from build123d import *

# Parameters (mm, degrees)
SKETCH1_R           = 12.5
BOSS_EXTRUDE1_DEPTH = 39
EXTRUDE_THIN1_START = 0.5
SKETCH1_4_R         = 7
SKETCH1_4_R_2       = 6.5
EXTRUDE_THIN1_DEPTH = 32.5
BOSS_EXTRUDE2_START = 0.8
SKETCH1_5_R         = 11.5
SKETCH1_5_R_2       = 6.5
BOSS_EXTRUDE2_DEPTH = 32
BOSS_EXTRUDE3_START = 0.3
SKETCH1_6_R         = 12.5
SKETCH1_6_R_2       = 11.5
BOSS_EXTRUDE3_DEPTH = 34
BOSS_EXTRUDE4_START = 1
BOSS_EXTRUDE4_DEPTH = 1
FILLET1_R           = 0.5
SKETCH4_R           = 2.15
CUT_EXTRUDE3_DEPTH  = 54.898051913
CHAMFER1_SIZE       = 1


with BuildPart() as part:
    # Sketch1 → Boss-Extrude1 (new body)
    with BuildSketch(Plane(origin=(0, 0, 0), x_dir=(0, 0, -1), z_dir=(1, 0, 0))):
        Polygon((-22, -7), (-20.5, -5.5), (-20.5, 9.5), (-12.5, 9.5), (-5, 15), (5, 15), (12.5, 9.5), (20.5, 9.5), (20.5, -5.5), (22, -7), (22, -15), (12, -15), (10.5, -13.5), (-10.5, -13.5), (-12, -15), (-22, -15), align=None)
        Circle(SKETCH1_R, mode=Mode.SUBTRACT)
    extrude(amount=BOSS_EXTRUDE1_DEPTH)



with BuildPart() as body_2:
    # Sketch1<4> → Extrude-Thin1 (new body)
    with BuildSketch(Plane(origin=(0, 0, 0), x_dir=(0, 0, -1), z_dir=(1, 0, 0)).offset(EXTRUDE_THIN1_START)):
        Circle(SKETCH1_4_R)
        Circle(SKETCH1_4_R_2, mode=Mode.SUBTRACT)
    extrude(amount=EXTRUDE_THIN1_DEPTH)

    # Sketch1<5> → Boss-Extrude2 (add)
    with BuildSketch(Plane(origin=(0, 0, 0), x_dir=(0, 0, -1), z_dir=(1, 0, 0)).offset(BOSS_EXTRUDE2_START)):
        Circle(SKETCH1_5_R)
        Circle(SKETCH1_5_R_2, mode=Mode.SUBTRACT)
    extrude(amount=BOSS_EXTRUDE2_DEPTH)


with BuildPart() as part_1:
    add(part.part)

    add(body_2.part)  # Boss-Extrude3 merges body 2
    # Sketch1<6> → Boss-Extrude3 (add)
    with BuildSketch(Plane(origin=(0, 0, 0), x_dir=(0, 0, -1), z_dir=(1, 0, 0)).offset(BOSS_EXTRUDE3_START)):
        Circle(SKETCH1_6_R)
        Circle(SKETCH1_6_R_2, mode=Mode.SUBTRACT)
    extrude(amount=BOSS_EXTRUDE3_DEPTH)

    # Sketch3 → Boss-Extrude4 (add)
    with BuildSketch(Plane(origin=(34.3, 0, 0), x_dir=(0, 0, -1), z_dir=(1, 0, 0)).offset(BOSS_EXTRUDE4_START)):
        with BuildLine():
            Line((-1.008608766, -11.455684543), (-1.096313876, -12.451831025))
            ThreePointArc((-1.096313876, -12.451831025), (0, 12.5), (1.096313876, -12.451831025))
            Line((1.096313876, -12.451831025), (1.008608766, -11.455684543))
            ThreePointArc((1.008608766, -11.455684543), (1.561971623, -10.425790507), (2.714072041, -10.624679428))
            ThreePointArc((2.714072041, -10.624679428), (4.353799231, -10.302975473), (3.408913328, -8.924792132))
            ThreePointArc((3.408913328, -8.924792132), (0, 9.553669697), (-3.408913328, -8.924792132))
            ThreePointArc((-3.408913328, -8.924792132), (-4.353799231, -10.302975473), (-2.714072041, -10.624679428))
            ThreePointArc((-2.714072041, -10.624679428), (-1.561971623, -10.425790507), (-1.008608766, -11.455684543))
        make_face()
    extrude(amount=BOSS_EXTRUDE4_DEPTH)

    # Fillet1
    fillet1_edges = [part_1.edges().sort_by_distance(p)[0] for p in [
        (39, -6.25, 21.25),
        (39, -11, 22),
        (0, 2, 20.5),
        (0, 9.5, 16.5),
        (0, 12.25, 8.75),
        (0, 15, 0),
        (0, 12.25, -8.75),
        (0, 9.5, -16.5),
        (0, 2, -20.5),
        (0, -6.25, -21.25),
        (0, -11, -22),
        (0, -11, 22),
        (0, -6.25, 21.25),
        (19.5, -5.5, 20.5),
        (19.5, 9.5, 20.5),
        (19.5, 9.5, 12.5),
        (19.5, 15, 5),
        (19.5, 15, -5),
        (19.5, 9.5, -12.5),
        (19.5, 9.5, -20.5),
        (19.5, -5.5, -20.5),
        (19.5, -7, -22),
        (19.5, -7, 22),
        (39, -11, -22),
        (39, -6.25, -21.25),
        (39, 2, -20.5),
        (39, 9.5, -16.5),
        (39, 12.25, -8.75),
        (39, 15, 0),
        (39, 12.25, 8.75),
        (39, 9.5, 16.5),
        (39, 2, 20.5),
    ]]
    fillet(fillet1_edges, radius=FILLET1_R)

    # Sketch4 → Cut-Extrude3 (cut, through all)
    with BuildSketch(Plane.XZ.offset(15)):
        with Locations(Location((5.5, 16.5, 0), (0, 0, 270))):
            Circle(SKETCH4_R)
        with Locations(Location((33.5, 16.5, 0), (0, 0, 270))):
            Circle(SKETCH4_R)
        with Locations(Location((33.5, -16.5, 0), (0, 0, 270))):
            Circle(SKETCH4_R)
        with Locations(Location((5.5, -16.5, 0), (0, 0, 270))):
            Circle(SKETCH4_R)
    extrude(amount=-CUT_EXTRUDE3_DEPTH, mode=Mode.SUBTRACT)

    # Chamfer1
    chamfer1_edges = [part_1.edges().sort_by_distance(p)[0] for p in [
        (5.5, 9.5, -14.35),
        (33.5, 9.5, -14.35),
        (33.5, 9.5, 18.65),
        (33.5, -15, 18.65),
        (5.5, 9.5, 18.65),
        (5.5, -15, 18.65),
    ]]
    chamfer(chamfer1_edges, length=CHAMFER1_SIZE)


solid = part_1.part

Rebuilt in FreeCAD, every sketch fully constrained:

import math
import FreeCAD as App
import Part
import Sketcher
from FreeCAD import Vector


def edges_at(feature, points):
    """Names of the edges that pass closest to the given points."""
    edges = feature.Shape.Edges
    near = lambda p: min(range(len(edges)), key=lambda i: edges[i].distToShape(Part.Vertex(*p))[0])
    return sorted({f"Edge{near(p) + 1}" for p in points})


def add_polygon(sketch, points):
    """Adds a closed chain of lines whose ends are joined by coincident constraints."""
    first, n = sketch.GeometryCount, len(points)
    for a, b in zip(points, points[1:] + points[:1]):
        sketch.addGeometry(Part.LineSegment(App.Vector(*a, 0), App.Vector(*b, 0)), False)
    for i in range(n):
        sketch.addConstraint(Sketcher.Constraint("Coincident", first + i, 2, first + (i + 1) % n, 1))

doc = App.newDocument("Part")
params = doc.addObject("Spreadsheet::Sheet", "Params")
for row, (alias, value) in enumerate([
    ("sketch1_diameter", "25 mm"),
    ("sketch1_width", "8 mm"),
    ("sketch1_width2", "15 mm"),
    ("sketch1_height", "10 mm"),
    ("sketch1_height2", "21 mm"),
    ("pad1_length", "39 mm"),
    ("sketch2_diameter", "14 mm"),
    ("sketch2_diameter2", "13 mm"),
    ("pad2_length", "32.5 mm"),
    ("sketch3_diameter", "23 mm"),
    ("sketch3_diameter2", "13 mm"),
    ("pad3_length", "32 mm"),
    ("sketch4_diameter", "25 mm"),
    ("sketch4_diameter2", "23 mm"),
    ("pad4_length", "34 mm"),
    ("sketch5_radius", "1 mm"),
    ("sketch5_radius2", "12.5 mm"),
    ("sketch5_length", "1 mm"),
    ("pad5_length", "1 mm"),
    ("fillet_radius", "0.5 mm"),
    ("sketch6_diameter", "4.3 mm"),
    ("chamfer_size", "1 mm"),
], start=1):
    params.set(f"A{row}", alias)
    params.set(f"B{row}", "=" + value)
    params.setAlias(f"B{row}", alias)

body = doc.addObject("PartDesign::Body", "Body")

sketch1 = body.newObject("Sketcher::SketchObject", "Sketch")
sketch1.AttachmentSupport = (doc.getObject("YZ_Plane"), [""])
sketch1.MapMode = "FlatFace"
add_polygon(sketch1, [(-5.5, 20.5), (-7, 22), (-15, 22), (-15, 12), (-13.5, 10.5), (-13.5, -10.5), (-15, -12), (-15, -22), (-7, -22), (-5.5, -20.5), (9.5, -20.5), (9.5, -12.5), (15, -5), (15, 5), (9.5, 12.5), (9.5, 20.5)])
sketch1.addGeometry(Part.Circle(Vector(0, 0, 0), Vector(0, 0, 1), 12.5), False)
sketch1.addConstraint([
    Sketcher.Constraint("Horizontal", 1),
    Sketcher.Constraint("Vertical", 2),
    Sketcher.Constraint("Vertical", 4),
    Sketcher.Constraint("Vertical", 6),
    Sketcher.Constraint("Horizontal", 7),
    Sketcher.Constraint("Horizontal", 9),
    Sketcher.Constraint("Vertical", 10),
    Sketcher.Constraint("Vertical", 12),
    Sketcher.Constraint("Vertical", 14),
    Sketcher.Constraint("Horizontal", 15),
    Sketcher.Constraint("Coincident", 16, 3, -1, 1),
    Sketcher.Constraint("Symmetric", 2, 2, 5, 2, -1),
    Sketcher.Constraint("Symmetric", 0, 2, 7, 2, -1),
    Sketcher.Constraint("Symmetric", 10, 2, 13, 2, -1),
    Sketcher.Constraint("Symmetric", 8, 2, 15, 2, -1),
    Sketcher.Constraint("Parallel", 0, 3),
    Sketcher.Constraint("Perpendicular", 3, 5),
    Sketcher.Constraint("Parallel", 5, 8),
    Sketcher.Constraint("Equal", 7, 10),
    Sketcher.Constraint("Equal", 6, 12),
    Sketcher.Constraint("Equal", 0, 3),
    Sketcher.Constraint("Equal", 11, 13),
    Sketcher.Constraint("Diameter", 16, 25.0),
    Sketcher.Constraint("DistanceX", 1, 2, 1, 1, 8.0),
    Sketcher.Constraint("DistanceX", 9, 1, 9, 2, 15.0),
    Sketcher.Constraint("DistanceY", 2, 2, 2, 1, 10.0),
    Sketcher.Constraint("DistanceY", 4, 2, 4, 1, 21.0),
    Sketcher.Constraint("DistanceX", 0, 2, -1, 1, 7.0),
    Sketcher.Constraint("DistanceY", -1, 1, 0, 2, 22.0),
    Sketcher.Constraint("DistanceX", -1, 1, 11, 2, 15.0),
])
sketch1.setExpression("Constraints[38]", "Params.sketch1_diameter")
sketch1.setExpression("Constraints[39]", "Params.sketch1_width")
sketch1.setExpression("Constraints[40]", "Params.sketch1_width2")
sketch1.setExpression("Constraints[41]", "Params.sketch1_height")
sketch1.setExpression("Constraints[42]", "Params.sketch1_height2")
pad1 = body.newObject("PartDesign::Pad", "Pad")
pad1.Profile = sketch1
pad1.setExpression("Length", "Params.pad1_length")
body2 = doc.addObject("PartDesign::Body", "Body001")

sketch2 = body2.newObject("Sketcher::SketchObject", "Sketch001")
sketch2.AttachmentSupport = (doc.getObject("YZ_Plane001"), [""])
sketch2.MapMode = "FlatFace"
sketch2.AttachmentOffset = App.Placement(Vector(0, 0, 0.5), App.Rotation())
sketch2.addGeometry([
    Part.Circle(Vector(0, 0, 0), Vector(0, 0, 1), 7),
    Part.Circle(Vector(0, 0, 0), Vector(0, 0, 1), 6),
], False)
sketch2.addConstraint([
    Sketcher.Constraint("Coincident", 0, 3, -1, 1),
    Sketcher.Constraint("Coincident", 1, 3, -1, 1),
    Sketcher.Constraint("Diameter", 0, 14.0),
    Sketcher.Constraint("Diameter", 1, 13.0),
])
sketch2.setExpression("Constraints[2]", "Params.sketch2_diameter")
sketch2.setExpression("Constraints[3]", "Params.sketch2_diameter2")
pad2 = body2.newObject("PartDesign::Pad", "Pad001")
pad2.Profile = sketch2
pad2.setExpression("Length", "Params.pad2_length")

sketch3 = body2.newObject("Sketcher::SketchObject", "Sketch002")
sketch3.AttachmentSupport = (doc.getObject("YZ_Plane001"), [""])
sketch3.MapMode = "FlatFace"
sketch3.AttachmentOffset = App.Placement(Vector(0, 0, 0.8), App.Rotation())
sketch3.addGeometry([
    Part.Circle(Vector(0, 0, 0), Vector(0, 0, 1), 12),
    Part.Circle(Vector(0, 0, 0), Vector(0, 0, 1), 6),
], False)
sketch3.addConstraint([
    Sketcher.Constraint("Coincident", 0, 3, -1, 1),
    Sketcher.Constraint("Coincident", 1, 3, -1, 1),
    Sketcher.Constraint("Diameter", 0, 23.0),
    Sketcher.Constraint("Diameter", 1, 13.0),
])
sketch3.setExpression("Constraints[2]", "Params.sketch3_diameter")
sketch3.setExpression("Constraints[3]", "Params.sketch3_diameter2")
pad3 = body2.newObject("PartDesign::Pad", "Pad002")
pad3.Profile = sketch3
pad3.setExpression("Length", "Params.pad3_length")
body.AllowCompound = True
doc.recompute()

boolean = body.newObject("PartDesign::Boolean", "Boolean")
boolean.Type = "Fuse"
boolean.addObjects([body2])

sketch4 = body.newObject("Sketcher::SketchObject", "Sketch003")
sketch4.AttachmentSupport = (doc.getObject("YZ_Plane"), [""])
sketch4.MapMode = "FlatFace"
sketch4.AttachmentOffset = App.Placement(Vector(0, 0, 0.3), App.Rotation())
sketch4.addGeometry([
    Part.Circle(Vector(0, 0, 0), Vector(0, 0, 1), 12),
    Part.Circle(Vector(0, 0, 0), Vector(0, 0, 1), 12),
], False)
sketch4.addConstraint([
    Sketcher.Constraint("Coincident", 0, 3, -1, 1),
    Sketcher.Constraint("Coincident", 1, 3, -1, 1),
    Sketcher.Constraint("Diameter", 0, 25.0),
    Sketcher.Constraint("Diameter", 1, 23.0),
])
sketch4.setExpression("Constraints[2]", "Params.sketch4_diameter")
sketch4.setExpression("Constraints[3]", "Params.sketch4_diameter2")
pad4 = body.newObject("PartDesign::Pad", "Pad003")
pad4.Profile = sketch4
pad4.setExpression("Length", "Params.pad4_length")

sketch5 = body.newObject("Sketcher::SketchObject", "Sketch004")
sketch5.AttachmentSupport = (doc.getObject("YZ_Plane"), [""])
sketch5.MapMode = "FlatFace"
sketch5.AttachmentOffset = App.Placement(Vector(0, 0, 35.3), App.Rotation())
sketch5.addGeometry([
    Part.LineSegment(Vector(-12.5, 1.1, 0), Vector(-11.5, 1, 0)),
    Part.ArcOfCircle(Part.Circle(Vector(-11.3, 2, 0), Vector(0, 0, 1), 1), math.radians(-98), math.radians(46)),
    Part.ArcOfCircle(Part.Circle(Vector(-9.9, 3.4, 0), Vector(0, 0, 1), 1), math.radians(-1), math.radians(226)),
    Part.ArcOfCircle(Part.Circle(Vector(0, 0, 0), Vector(0, 0, 1), 9.6), math.radians(-159), math.radians(159)),
    Part.ArcOfCircle(Part.Circle(Vector(-9.9, -3.4, 0), Vector(0, 0, 1), 1), math.radians(134), math.radians(361)),
    Part.ArcOfCircle(Part.Circle(Vector(-11.3, -2, 0), Vector(0, 0, 1), 1), math.radians(-46), math.radians(98)),
    Part.LineSegment(Vector(-11.5, -1, 0), Vector(-12.5, -1.1, 0)),
    Part.ArcOfCircle(Part.Circle(Vector(0, 0, 0), Vector(0, 0, 1), 12.5), math.radians(-175), math.radians(175)),
], False)
sketch5.addConstraint([
    Sketcher.Constraint("Coincident", 0, 2, 1, 1),
    Sketcher.Constraint("Tangent", 1, 2, 2, 2),
    Sketcher.Constraint("Coincident", 2, 1, 3, 2),
    Sketcher.Constraint("Coincident", 3, 1, 4, 2),
    Sketcher.Constraint("Tangent", 4, 1, 5, 1),
    Sketcher.Constraint("Coincident", 5, 2, 6, 1),
    Sketcher.Constraint("Coincident", 6, 2, 7, 1),
    Sketcher.Constraint("Coincident", 7, 2, 0, 1),
    Sketcher.Constraint("Coincident", 3, 3, -1, 1),
    Sketcher.Constraint("Coincident", 7, 3, -1, 1),
    Sketcher.Constraint("Equal", 1, 2),
    Sketcher.Constraint("Equal", 2, 4),
    Sketcher.Constraint("Equal", 4, 5),
    Sketcher.Constraint("Symmetric", 2, 3, 4, 3, -1),
    Sketcher.Constraint("Symmetric", 0, 2, 5, 2, -1),
    Sketcher.Constraint("Vertical", 6, 2, 7, 2),
    Sketcher.Constraint("Radius", 1, 1.0),
    Sketcher.Constraint("Radius", 7, 12.5),
    Sketcher.Constraint("Distance", 0, 1.0),
    Sketcher.Constraint("DistanceY", -1, 1, 1, 3, 2.0),
    Sketcher.Constraint("Radius", 3, 9.55367),
    Sketcher.Constraint("DistanceX", 1, 3, -1, 1, 11.324752),
    Sketcher.Constraint("DistanceX", 1, 2, -1, 1, 10.624679),
    Sketcher.Constraint("DistanceX", 6, 2, -1, 1, 12.451831),
])
sketch5.setExpression("Constraints[16]", "Params.sketch5_radius")
sketch5.setExpression("Constraints[17]", "Params.sketch5_radius2")
sketch5.setExpression("Constraints[18]", "Params.sketch5_length")
pad5 = body.newObject("PartDesign::Pad", "Pad004")
pad5.Profile = sketch5
pad5.setExpression("Length", "Params.pad5_length")
doc.recompute()

fillet = body.newObject("PartDesign::Fillet", "Fillet")
fillet.Base = (pad5, edges_at(pad5, [
    (39, -6.25, 21.25),
    (39, -11, 22),
    (0, 2, 20.5),
    (0, 9.5, 16.5),
    (0, 12.25, 8.75),
    (0, 15, 0),
    (0, 12.25, -8.75),
    (0, 9.5, -16.5),
    (0, 2, -20.5),
    (0, -6.25, -21.25),
    (0, -11, -22),
    (0, -11, 22),
    (0, -6.25, 21.25),
    (19.5, -5.5, 20.5),
    (19.5, 9.5, 20.5),
    (19.5, 9.5, 12.5),
    (19.5, 15, 5),
    (19.5, 15, -5),
    (19.5, 9.5, -12.5),
    (19.5, 9.5, -20.5),
    (19.5, -5.5, -20.5),
    (19.5, -7, -22),
    (19.5, -7, 22),
    (39, -11, -22),
    (39, -6.25, -21.25),
    (39, 2, -20.5),
    (39, 9.5, -16.5),
    (39, 12.25, -8.75),
    (39, 15, 0),
    (39, 12.25, 8.75),
    (39, 9.5, 16.5),
    (39, 2, 20.5),
]))
fillet.setExpression("Radius", "Params.fillet_radius")

sketch6 = body.newObject("Sketcher::SketchObject", "Sketch005")
sketch6.AttachmentSupport = (doc.getObject("XZ_Plane"), [""])
sketch6.MapMode = "FlatFace"
sketch6.AttachmentOffset = App.Placement(Vector(0, 0, 15), App.Rotation())
sketch6.addGeometry([
    Part.Circle(Vector(5.5, 16.5, 0), Vector(0, 0, 1), 2.1),
    Part.Circle(Vector(33.5, 16.5, 0), Vector(0, 0, 1), 2.1),
    Part.Circle(Vector(33.5, -16.5, 0), Vector(0, 0, 1), 2.1),
    Part.Circle(Vector(5.5, -16.5, 0), Vector(0, 0, 1), 2.1),
], False)
sketch6.addConstraint([
    Sketcher.Constraint("Equal", 0, 1),
    Sketcher.Constraint("Equal", 1, 2),
    Sketcher.Constraint("Equal", 2, 3),
    Sketcher.Constraint("Symmetric", 1, 3, 2, 3, -1),
    Sketcher.Constraint("Symmetric", 0, 3, 3, 3, -1),
    Sketcher.Constraint("Horizontal", 0, 3, 1, 3),
    Sketcher.Constraint("Diameter", 0, 4.3),
    Sketcher.Constraint("DistanceX", 0, 3, 1, 3, 28.0),
    Sketcher.Constraint("DistanceY", 2, 3, 1, 3, 33.0),
    Sketcher.Constraint("DistanceX", -1, 1, 0, 3, 5.5),
])
sketch6.setExpression("Constraints[6]", "Params.sketch6_diameter")
pocket1 = body.newObject("PartDesign::Pocket", "Pocket")
pocket1.Profile = sketch6
pocket1.Type = "ThroughAll"
doc.recompute()

chamfer = body.newObject("PartDesign::Chamfer", "Chamfer")
chamfer.Base = (pocket1, edges_at(pocket1, [
    (5.5, 9.5, -14.35),
    (33.5, 9.5, -14.35),
    (33.5, 9.5, 18.65),
    (33.5, -15, 18.65),
    (5.5, 9.5, 18.65),
    (5.5, -15, 18.65),
]))
chamfer.setExpression("Size", "Params.chamfer_size")

doc.recompute()
